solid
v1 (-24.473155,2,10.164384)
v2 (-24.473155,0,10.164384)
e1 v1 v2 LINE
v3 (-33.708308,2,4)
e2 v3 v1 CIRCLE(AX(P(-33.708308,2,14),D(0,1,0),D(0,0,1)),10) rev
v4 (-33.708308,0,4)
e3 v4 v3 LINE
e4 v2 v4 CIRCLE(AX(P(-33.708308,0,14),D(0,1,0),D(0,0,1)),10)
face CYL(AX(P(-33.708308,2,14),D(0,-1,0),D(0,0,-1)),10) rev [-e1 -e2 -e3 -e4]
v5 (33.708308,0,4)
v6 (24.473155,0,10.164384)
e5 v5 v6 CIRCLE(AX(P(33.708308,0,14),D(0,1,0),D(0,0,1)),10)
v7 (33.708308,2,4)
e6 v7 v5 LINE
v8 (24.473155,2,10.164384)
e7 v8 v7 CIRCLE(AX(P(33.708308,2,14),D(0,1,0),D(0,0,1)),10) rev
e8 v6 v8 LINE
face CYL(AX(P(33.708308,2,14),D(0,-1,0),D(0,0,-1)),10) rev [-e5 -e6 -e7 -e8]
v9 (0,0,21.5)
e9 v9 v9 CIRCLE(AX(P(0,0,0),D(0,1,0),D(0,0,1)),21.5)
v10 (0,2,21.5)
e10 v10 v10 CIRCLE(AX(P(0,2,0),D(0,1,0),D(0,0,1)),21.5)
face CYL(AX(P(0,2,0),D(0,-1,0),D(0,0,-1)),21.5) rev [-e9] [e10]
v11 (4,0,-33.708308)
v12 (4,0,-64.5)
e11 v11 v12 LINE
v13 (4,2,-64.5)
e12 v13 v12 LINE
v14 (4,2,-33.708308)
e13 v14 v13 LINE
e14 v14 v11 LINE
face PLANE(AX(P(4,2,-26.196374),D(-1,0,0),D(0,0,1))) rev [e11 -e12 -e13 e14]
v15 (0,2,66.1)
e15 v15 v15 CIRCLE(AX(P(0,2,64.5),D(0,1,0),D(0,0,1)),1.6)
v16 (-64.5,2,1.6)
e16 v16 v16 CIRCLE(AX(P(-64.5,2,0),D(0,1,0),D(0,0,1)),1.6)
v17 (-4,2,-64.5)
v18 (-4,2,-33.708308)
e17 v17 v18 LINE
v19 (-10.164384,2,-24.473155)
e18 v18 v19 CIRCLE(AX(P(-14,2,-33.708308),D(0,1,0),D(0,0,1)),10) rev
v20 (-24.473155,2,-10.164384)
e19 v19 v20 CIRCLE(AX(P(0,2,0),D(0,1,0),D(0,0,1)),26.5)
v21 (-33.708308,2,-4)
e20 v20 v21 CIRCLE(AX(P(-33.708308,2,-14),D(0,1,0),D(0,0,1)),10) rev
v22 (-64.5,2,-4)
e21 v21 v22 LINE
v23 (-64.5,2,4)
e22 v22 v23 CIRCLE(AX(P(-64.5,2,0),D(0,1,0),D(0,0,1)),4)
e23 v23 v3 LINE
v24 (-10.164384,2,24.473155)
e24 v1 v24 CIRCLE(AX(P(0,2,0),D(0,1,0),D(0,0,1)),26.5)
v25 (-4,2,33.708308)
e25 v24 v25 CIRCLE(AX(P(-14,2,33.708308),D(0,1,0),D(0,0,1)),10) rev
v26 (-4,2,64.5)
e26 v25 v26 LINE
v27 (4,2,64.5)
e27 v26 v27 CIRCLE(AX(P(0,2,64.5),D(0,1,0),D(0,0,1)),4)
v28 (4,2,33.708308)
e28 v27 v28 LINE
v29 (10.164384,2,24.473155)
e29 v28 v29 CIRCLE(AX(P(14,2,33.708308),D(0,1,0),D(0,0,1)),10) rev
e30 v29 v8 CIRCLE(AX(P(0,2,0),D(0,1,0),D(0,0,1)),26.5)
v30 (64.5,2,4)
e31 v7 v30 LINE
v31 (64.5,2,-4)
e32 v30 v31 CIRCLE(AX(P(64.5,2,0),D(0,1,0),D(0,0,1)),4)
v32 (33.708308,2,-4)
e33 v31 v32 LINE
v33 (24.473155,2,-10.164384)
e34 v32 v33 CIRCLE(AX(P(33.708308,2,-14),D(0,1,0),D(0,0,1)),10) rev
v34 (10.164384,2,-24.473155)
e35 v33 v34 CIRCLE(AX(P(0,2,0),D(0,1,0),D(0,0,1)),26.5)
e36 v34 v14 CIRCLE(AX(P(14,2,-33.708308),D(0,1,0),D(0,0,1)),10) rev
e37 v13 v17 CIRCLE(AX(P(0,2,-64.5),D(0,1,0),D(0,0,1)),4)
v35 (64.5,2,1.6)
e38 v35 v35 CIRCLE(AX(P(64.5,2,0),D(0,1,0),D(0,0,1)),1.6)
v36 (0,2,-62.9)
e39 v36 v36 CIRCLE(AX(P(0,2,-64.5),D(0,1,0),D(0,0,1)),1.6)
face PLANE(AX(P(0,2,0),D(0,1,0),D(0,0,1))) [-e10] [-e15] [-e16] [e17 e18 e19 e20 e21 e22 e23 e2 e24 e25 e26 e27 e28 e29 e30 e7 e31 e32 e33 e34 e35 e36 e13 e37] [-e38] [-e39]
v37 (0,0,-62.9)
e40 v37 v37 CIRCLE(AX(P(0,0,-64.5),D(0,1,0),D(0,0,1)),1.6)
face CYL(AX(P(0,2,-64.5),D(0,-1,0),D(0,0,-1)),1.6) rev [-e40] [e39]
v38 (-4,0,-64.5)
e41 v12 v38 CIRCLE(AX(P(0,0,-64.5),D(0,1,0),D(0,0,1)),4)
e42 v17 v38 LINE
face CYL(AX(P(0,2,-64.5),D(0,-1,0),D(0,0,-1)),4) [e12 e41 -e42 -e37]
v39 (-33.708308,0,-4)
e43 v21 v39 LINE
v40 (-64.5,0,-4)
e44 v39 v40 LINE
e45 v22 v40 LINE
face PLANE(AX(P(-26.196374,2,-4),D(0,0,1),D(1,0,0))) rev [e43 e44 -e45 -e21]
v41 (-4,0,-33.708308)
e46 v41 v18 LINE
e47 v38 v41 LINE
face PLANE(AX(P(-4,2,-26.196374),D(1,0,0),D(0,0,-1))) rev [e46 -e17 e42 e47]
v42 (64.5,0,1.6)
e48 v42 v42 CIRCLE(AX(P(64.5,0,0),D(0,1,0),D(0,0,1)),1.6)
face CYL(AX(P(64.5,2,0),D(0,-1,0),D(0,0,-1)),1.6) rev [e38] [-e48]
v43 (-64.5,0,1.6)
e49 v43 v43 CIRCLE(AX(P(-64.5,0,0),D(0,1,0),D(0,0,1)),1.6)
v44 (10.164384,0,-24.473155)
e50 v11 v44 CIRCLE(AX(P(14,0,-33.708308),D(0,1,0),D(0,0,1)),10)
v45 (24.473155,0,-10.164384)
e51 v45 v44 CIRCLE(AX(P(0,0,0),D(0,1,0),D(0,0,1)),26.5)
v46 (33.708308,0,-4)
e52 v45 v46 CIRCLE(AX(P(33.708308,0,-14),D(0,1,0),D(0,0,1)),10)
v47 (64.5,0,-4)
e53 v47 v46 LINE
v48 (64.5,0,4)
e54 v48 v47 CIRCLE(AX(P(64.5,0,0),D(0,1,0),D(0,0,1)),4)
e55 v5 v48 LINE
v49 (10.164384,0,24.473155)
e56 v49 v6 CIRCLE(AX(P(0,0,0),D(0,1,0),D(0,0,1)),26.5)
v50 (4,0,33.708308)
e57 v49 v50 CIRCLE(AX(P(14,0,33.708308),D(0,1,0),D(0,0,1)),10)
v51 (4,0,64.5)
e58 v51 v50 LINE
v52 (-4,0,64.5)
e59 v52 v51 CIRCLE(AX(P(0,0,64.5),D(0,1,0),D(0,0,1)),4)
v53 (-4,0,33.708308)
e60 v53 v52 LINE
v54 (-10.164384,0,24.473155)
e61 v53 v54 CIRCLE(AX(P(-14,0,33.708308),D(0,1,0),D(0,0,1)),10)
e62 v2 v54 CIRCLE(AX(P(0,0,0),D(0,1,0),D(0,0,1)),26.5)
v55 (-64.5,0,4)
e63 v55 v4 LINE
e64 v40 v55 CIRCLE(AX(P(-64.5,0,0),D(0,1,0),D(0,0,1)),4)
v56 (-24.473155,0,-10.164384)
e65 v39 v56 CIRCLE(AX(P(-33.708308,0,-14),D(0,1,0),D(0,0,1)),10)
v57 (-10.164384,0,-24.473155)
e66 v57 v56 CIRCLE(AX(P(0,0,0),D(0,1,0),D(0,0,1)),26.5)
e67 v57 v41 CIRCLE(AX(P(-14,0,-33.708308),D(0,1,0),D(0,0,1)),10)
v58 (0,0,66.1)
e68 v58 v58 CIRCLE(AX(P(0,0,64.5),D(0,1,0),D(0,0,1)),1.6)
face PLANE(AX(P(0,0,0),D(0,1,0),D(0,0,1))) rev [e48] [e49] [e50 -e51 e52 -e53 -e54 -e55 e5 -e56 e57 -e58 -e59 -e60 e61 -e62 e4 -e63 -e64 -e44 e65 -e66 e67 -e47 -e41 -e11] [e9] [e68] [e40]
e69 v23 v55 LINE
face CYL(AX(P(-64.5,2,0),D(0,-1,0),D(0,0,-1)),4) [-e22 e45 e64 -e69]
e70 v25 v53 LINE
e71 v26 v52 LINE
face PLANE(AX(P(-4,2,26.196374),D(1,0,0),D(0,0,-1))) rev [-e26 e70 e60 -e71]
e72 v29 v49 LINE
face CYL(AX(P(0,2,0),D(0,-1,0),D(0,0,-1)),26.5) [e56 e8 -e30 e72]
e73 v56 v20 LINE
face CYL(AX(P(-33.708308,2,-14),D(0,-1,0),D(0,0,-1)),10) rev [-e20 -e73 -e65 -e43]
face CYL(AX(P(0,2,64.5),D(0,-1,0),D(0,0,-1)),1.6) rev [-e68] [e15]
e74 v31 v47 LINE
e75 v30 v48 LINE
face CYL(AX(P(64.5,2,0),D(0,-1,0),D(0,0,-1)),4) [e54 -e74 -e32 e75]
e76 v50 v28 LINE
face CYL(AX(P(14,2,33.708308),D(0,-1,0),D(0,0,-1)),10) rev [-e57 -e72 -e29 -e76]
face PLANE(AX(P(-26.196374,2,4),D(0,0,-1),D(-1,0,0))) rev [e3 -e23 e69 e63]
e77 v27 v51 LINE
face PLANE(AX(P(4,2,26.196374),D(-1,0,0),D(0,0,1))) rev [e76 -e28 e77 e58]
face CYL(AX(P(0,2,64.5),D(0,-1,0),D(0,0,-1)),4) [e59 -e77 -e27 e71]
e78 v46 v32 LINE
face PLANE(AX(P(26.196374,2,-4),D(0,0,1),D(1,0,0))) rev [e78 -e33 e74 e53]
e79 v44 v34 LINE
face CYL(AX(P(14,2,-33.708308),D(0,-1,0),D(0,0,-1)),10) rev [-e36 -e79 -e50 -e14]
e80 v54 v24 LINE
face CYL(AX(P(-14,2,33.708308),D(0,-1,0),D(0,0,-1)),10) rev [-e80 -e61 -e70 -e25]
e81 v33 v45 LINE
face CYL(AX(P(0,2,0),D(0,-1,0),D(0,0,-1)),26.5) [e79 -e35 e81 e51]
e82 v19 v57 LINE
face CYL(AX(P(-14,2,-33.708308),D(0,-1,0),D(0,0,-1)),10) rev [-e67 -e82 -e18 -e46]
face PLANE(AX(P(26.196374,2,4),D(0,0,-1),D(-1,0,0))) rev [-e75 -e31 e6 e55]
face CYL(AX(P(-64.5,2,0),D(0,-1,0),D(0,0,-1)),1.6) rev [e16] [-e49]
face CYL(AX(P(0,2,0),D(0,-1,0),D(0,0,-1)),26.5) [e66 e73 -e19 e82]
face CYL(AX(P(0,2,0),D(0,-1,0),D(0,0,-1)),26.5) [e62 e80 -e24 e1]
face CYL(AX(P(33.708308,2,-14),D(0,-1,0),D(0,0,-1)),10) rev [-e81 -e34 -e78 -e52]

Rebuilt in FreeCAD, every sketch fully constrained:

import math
import FreeCAD as App
import Part
import Sketcher
from FreeCAD import Vector


def edges_at(feature, points):
    """Names of the edges that pass closest to the given points."""
    edges = feature.Shape.Edges
    near = lambda p: min(range(len(edges)), key=lambda i: edges[i].distToShape(Part.Vertex(*p))[0])
    return sorted({f"Edge{near(p) + 1}" for p in points})

doc = App.newDocument("Part")
body = doc.addObject("PartDesign::Body", "Body")

sketch1 = doc.addObject("Sketcher::SketchObject", "Sketch")
body.addObject(sketch1)
sketch1.AttachmentSupport = (doc.XZ_Plane, [""])
sketch1.MapMode = "FlatFace"
sketch1.addGeometry(Part.LineSegment(Vector(4, -26.196374, 0), Vector(4, -64.5, 0)), False)
sketch1.addGeometry(Part.ArcOfCircle(Part.Circle(Vector(0, -64.5, 0), Vector(0, 0, 1), 4), math.radians(180), math.radians(360)), False)
sketch1.addGeometry(Part.LineSegment(Vector(-4, -64.5, 0), Vector(-4, -26.196374, 0)), False)
sketch1.addGeometry(Part.ArcOfCircle(Part.Circle(Vector(0, 0, 0), Vector(0, 0, 1), 26.5), math.radians(-171.318398), math.radians(-98.681602)), False)
sketch1.addGeometry(Part.LineSegment(Vector(-26.196374, -4, 0), Vector(-64.5, -4, 0)), False)
sketch1.addGeometry(Part.ArcOfCircle(Part.Circle(Vector(-64.5, 0, 0), Vector(0, 0, 1), 4), math.radians(90), math.radians(270)), False)
sketch1.addGeometry(Part.LineSegment(Vector(-64.5, 4, 0), Vector(-26.196374, 4, 0)), False)
sketch1.addGeometry(Part.ArcOfCircle(Part.Circle(Vector(0, 0, 0), Vector(0, 0, 1), 26.5), math.radians(98.681602), math.radians(171.318398)), False)
sketch1.addGeometry(Part.LineSegment(Vector(-4, 26.196374, 0), Vector(-4, 64.5, 0)), False)
sketch1.addGeometry(Part.ArcOfCircle(Part.Circle(Vector(0, 64.5, 0), Vector(0, 0, 1), 4), math.radians(0), math.radians(180)), False)
sketch1.addGeometry(Part.LineSegment(Vector(4, 64.5, 0), Vector(4, 26.196374, 0)), False)
sketch1.addGeometry(Part.ArcOfCircle(Part.Circle(Vector(0, 0, 0), Vector(0, 0, 1), 26.5), math.radians(8.681602), math.radians(81.318398)), False)
sketch1.addGeometry(Part.LineSegment(Vector(26.196374, 4, 0), Vector(64.5, 4, 0)), False)
sketch1.addGeometry(Part.ArcOfCircle(Part.Circle(Vector(64.5, 0, 0), Vector(0, 0, 1), 4), math.radians(-90), math.radians(90)), False)
sketch1.addGeometry(Part.LineSegment(Vector(64.5, -4, 0), Vector(26.196374, -4, 0)), False)
sketch1.addGeometry(Part.ArcOfCircle(Part.Circle(Vector(0, 0, 0), Vector(0, 0, 1), 26.5), math.radians(-81.318398), math.radians(-8.681602)), False)
sketch1.addGeometry(Part.Circle(Vector(0, 64.5, 0), Vector(0, 0, 1), 1.6), False)
sketch1.addGeometry(Part.Circle(Vector(-64.5, 0, 0), Vector(0, 0, 1), 1.6), False)
sketch1.addGeometry(Part.Circle(Vector(0, 0, 0), Vector(0, 0, 1), 21.5), False)
sketch1.addGeometry(Part.Circle(Vector(64.5, 0, 0), Vector(0, 0, 1), 1.6), False)
sketch1.addGeometry(Part.Circle(Vector(0, -64.5, 0), Vector(0, 0, 1), 1.6), False)
sketch1.addConstraint(Sketcher.Constraint("Tangent", 0, 2, 1, 2))
sketch1.addConstraint(Sketcher.Constraint("Tangent", 1, 1, 2, 1))
sketch1.addConstraint(Sketcher.Constraint("Coincident", 2, 2, 3, 2))
sketch1.addConstraint(Sketcher.Constraint("Coincident", 3, 1, 4, 1))
sketch1.addConstraint(Sketcher.Constraint("Tangent", 4, 2, 5, 2))
sketch1.addConstraint(Sketcher.Constraint("Tangent", 5, 1, 6, 1))
sketch1.addConstraint(Sketcher.Constraint("Coincident", 6, 2, 7, 2))
sketch1.addConstraint(Sketcher.Constraint("Coincident", 7, 1, 8, 1))
sketch1.addConstraint(Sketcher.Constraint("Tangent", 8, 2, 9, 2))
sketch1.addConstraint(Sketcher.Constraint("Tangent", 9, 1, 10, 1))
sketch1.addConstraint(Sketcher.Constraint("Coincident", 10, 2, 11, 2))
sketch1.addConstraint(Sketcher.Constraint("Coincident", 11, 1, 12, 1))
sketch1.addConstraint(Sketcher.Constraint("Tangent", 12, 2, 13, 2))
sketch1.addConstraint(Sketcher.Constraint("Tangent", 13, 1, 14, 1))
sketch1.addConstraint(Sketcher.Constraint("Coincident", 14, 2, 15, 2))
sketch1.addConstraint(Sketcher.Constraint("Coincident", 15, 1, 0, 1))
sketch1.addConstraint(Sketcher.Constraint("Vertical", 0))
sketch1.addConstraint(Sketcher.Constraint("Vertical", 2))
sketch1.addConstraint(Sketcher.Constraint("Horizontal", 4))
sketch1.addConstraint(Sketcher.Constraint("Horizontal", 6))
sketch1.addConstraint(Sketcher.Constraint("Vertical", 8))
sketch1.addConstraint(Sketcher.Constraint("Vertical", 10))
sketch1.addConstraint(Sketcher.Constraint("Horizontal", 12))
sketch1.addConstraint(Sketcher.Constraint("Horizontal", 14))
sketch1.addConstraint(Sketcher.Constraint("Coincident", 3, 3, -1, 1))
sketch1.addConstraint(Sketcher.Constraint("Coincident", 7, 3, -1, 1))
sketch1.addConstraint(Sketcher.Constraint("Coincident", 11, 3, -1, 1))
sketch1.addConstraint(Sketcher.Constraint("Coincident", 15, 3, -1, 1))
sketch1.addConstraint(Sketcher.Constraint("Coincident", 18, 3, -1, 1))
sketch1.addConstraint(Sketcher.Constraint("Coincident", 16, 3, 9, 3))
sketch1.addConstraint(Sketcher.Constraint("Coincident", 17, 3, 5, 3))
sketch1.addConstraint(Sketcher.Constraint("Coincident", 19, 3, 13, 3))
sketch1.addConstraint(Sketcher.Constraint("Coincident", 20, 3, 1, 3))
sketch1.addConstraint(Sketcher.Constraint("Equal", 1, 5))
sketch1.addConstraint(Sketcher.Constraint("Equal", 3, 7))
sketch1.addConstraint(Sketcher.Constraint("Equal", 5, 9))
sketch1.addConstraint(Sketcher.Constraint("Equal", 7, 11))
sketch1.addConstraint(Sketcher.Constraint("Equal", 9, 13))
sketch1.addConstraint(Sketcher.Constraint("Equal", 11, 15))
sketch1.addConstraint(Sketcher.Constraint("Equal", 16, 17))
sketch1.addConstraint(Sketcher.Constraint("Equal", 17, 19))
sketch1.addConstraint(Sketcher.Constraint("Equal", 19, 20))
sketch1.addConstraint(Sketcher.Constraint("Symmetric", 1, 3, 9, 3, -1, 1))
sketch1.addConstraint(Sketcher.Constraint("Symmetric", 5, 3, 13, 3, -1, 1))
sketch1.addConstraint(Sketcher.Constraint("PointOnObject", 1, 3, -2))
sketch1.addConstraint(Sketcher.Constraint("PointOnObject", 5, 3, -1))
sketch1.addConstraint(Sketcher.Constraint("Equal", 14, 0))
sketch1.addConstraint(Sketcher.Constraint("Diameter", 18, 43.0))
sketch1.addConstraint(Sketcher.Constraint("Radius", 1, 4.0))
sketch1.addConstraint(Sketcher.Constraint("Diameter", 16, 3.2))
sketch1.addConstraint(Sketcher.Constraint("Radius", 3, 26.5))
sketch1.addConstraint(Sketcher.Constraint("DistanceY", 1, 3, 9, 3, 129.0))
pad1 = doc.addObject("PartDesign::Pad", "Pad")
body.addObject(pad1)
pad1.Profile = sketch1
pad1.Length = 2
pad1.Reversed = True
doc.recompute()

fillet = doc.addObject("PartDesign::Fillet", "Fillet")
body.addObject(fillet)
fillet.Base = (pad1, edges_at(pad1, [
    (26.196, 1, -4),
    (26.196, 1, 4),
    (4, 1, 26.196),
    (-4, 1, 26.196),
    (-26.196, 1, 4),
    (-26.196, 1, -4),
    (-4, 1, -26.196),
    (4, 1, -26.196),
]))
fillet.Radius = 10

doc.recompute()
